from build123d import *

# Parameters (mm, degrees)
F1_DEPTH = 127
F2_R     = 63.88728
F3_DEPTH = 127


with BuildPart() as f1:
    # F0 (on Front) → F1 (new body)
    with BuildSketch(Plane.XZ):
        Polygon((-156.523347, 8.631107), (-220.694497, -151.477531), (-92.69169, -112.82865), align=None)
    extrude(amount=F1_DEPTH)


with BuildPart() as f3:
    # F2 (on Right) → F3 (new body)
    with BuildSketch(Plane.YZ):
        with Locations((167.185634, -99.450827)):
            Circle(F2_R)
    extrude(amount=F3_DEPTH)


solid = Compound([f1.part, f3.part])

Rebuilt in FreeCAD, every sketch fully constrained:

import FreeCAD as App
import Part
import Sketcher
from FreeCAD import Vector
Q = App.Units.Quantity


def add_polygon(sketch, points):
    """Adds a closed chain of lines whose ends are joined by coincident constraints."""
    first, n = sketch.GeometryCount, len(points)
    for a, b in zip(points, points[1:] + points[:1]):
        sketch.addGeometry(Part.LineSegment(App.Vector(*a, 0), App.Vector(*b, 0)), False)
    for i in range(n):
        sketch.addConstraint(Sketcher.Constraint("Coincident", first + i, 2, first + (i + 1) % n, 1))

doc = App.newDocument("Part")
body = doc.addObject("PartDesign::Body", "Body")

# Sketch on XZ plane
sketch1 = body.newObject("Sketcher::SketchObject", "Sketch")
sketch1.AttachmentSupport = (doc.getObject("XZ_Plane"), [""])
sketch1.MapMode = "FlatFace"
add_polygon(sketch1, [(-157, 9), (-221, -151), (-93, -113)])  # lines 0-2
sketch1.addConstraint(Sketcher.Constraint("Distance", 1, 133.710338))
sketch1.addConstraint(Sketcher.Constraint("DistanceY", 0, 2, -1, 1, 151.477531))
sketch1.addConstraint(Sketcher.Constraint("DistanceX", 1, 2, -1, 1, 92.69169))
sketch1.addConstraint(Sketcher.Constraint("DistanceY", 1, 2, -1, 1, 112.82865))
sketch1.addConstraint(Sketcher.Constraint("DistanceX", 0, 2, 2, 2, 64.17115))
sketch1.addConstraint(Sketcher.Constraint("Distance", 0, 172.489746))
pad1 = body.newObject("PartDesign::Pad", "Pad")
pad1.Profile = sketch1
pad1.Length = Q("5 in")
body2 = doc.addObject("PartDesign::Body", "Body001")

# Sketch on YZ plane
sketch2 = body2.newObject("Sketcher::SketchObject", "Sketch001")
sketch2.AttachmentSupport = (doc.getObject("YZ_Plane001"), [""])
sketch2.MapMode = "FlatFace"
sketch2.addGeometry(Part.Circle(Vector(167, -99, 0), Vector(0, 0, 1), 64), False)
sketch2.addConstraint(Sketcher.Constraint("Diameter", 0, 127.77456))
sketch2.addConstraint(Sketcher.Constraint("DistanceX", -1, 1, 0, 3, 167.185634))
sketch2.addConstraint(Sketcher.Constraint("DistanceY", 0, 3, -1, 1, 99.450827))
pad2 = body2.newObject("PartDesign::Pad", "Pad001")
pad2.Profile = sketch2
pad2.Length = Q("5 in")

doc.recompute()
